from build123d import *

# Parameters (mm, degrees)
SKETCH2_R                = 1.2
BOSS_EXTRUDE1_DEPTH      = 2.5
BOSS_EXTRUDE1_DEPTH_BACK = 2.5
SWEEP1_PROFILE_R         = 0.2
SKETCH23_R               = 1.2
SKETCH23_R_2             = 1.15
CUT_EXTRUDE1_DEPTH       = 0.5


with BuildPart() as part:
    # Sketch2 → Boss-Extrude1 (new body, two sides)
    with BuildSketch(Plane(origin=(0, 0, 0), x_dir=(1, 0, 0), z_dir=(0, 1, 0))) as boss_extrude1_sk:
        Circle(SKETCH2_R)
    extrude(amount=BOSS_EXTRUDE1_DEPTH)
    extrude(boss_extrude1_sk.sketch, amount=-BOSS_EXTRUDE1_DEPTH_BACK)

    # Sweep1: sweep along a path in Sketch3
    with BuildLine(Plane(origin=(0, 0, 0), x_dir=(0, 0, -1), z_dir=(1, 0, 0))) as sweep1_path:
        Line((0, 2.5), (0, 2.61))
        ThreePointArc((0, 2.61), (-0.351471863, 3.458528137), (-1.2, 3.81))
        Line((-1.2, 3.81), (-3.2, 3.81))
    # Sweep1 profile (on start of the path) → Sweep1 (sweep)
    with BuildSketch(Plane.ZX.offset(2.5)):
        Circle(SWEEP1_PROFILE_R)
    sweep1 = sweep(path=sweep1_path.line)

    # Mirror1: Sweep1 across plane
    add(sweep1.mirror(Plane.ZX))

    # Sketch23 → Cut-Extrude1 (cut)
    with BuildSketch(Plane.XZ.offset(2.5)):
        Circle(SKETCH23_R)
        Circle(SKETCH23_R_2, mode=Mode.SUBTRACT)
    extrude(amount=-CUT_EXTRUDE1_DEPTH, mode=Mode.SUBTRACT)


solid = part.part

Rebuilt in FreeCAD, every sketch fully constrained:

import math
import FreeCAD as App
import Part
import Sketcher

V = App.Vector

doc = App.newDocument("Part")
body = doc.addObject("PartDesign::Body", "Body")

# Sketch on XZ plane
sketch1 = body.newObject("Sketcher::SketchObject", "Sketch")
sketch1.AttachmentSupport = (doc.getObject("XZ_Plane"), [""])
sketch1.MapMode = "FlatFace"
sketch1.addGeometry(Part.Circle(V(0, 0, 0), V(0, 0, 1), 1.2), False)
sketch1.addConstraint(Sketcher.Constraint("Coincident", 0, 3, -1, 1))
sketch1.addConstraint(Sketcher.Constraint("Diameter", 0, 2.4))
pad1 = body.newObject("PartDesign::Pad", "Pad")
pad1.Profile = sketch1
pad1.Type = "TwoLengths"
pad1.Length = 2.5
pad1.Length2 = 2.5
pad1.Reversed = True

# Sketch on XZ plane
sketch2 = body.newObject("Sketcher::SketchObject", "Sketch001")
sketch2.AttachmentSupport = (doc.getObject("XZ_Plane"), [""])
sketch2.MapMode = "FlatFace"
sketch2.AttachmentOffset = App.Placement(V(0, 0, -2.5), App.Rotation())
sketch2.addGeometry(Part.Circle(V(0, 0, 0), V(0, 0, 1), 0.2), False)
sketch2.addConstraint(Sketcher.Constraint("Coincident", 0, 3, -1, 1))
sketch2.addConstraint(Sketcher.Constraint("Diameter", 0, 0.4))

# Sketch on YZ plane
sketch3 = body.newObject("Sketcher::SketchObject", "Sketch002")
sketch3.AttachmentSupport = (doc.getObject("YZ_Plane"), [""])
sketch3.MapMode = "FlatFace"
sketch3.addGeometry(Part.LineSegment(V(2.5, 0, 0), V(2.61, 0, 0)), False)
sketch3.addGeometry(Part.ArcOfCircle(Part.Circle(V(2.61, 1.2, 0), V(0, 0, 1), 1.2), math.radians(-90), math.radians(0)), False)
sketch3.addGeometry(Part.LineSegment(V(3.81, 1.2, 0), V(3.81, 3.2, 0)), False)
sketch3.addConstraint(Sketcher.Constraint("Tangent", 0, 2, 1, 1))
sketch3.addConstraint(Sketcher.Constraint("Tangent", 1, 2, 2, 1))
sketch3.addConstraint(Sketcher.Constraint("Horizontal", 0))
sketch3.addConstraint(Sketcher.Constraint("Vertical", 2))
sketch3.addConstraint(Sketcher.Constraint("PointOnObject", 0, 1, -1))
sketch3.addConstraint(Sketcher.Constraint("Radius", 1, 1.2))
sketch3.addConstraint(Sketcher.Constraint("DistanceY", 2, 1, 2, 2, 2.0))
sketch3.addConstraint(Sketcher.Constraint("DistanceX", 0, 1, 0, 2, 0.11))
sketch3.addConstraint(Sketcher.Constraint("DistanceX", -1, 1, 0, 1, 2.5))
doc.recompute()

additivepipe = body.newObject("PartDesign::AdditivePipe", "AdditivePipe")
additivepipe.Profile = sketch2
additivepipe.Spine = (sketch3, ["Edge1", "Edge2", "Edge3"])
doc.recompute()

mirrored = body.newObject("PartDesign::Mirrored", "Mirrored")
mirrored.Originals = [additivepipe]
mirrored.MirrorPlane = (doc.getObject("XZ_Plane"), [""])
body.Tip = mirrored

# Sketch on XZ plane
sketch4 = body.newObject("Sketcher::SketchObject", "Sketch003")
sketch4.AttachmentSupport = (doc.getObject("XZ_Plane"), [""])
sketch4.MapMode = "FlatFace"
sketch4.AttachmentOffset = App.Placement(V(0, 0, 2.5), App.Rotation())
sketch4.addGeometry(Part.Circle(V(0, 0, 0), V(0, 0, 1), 1.2), False)
sketch4.addGeometry(Part.Circle(V(0, 0, 0), V(0, 0, 1), 1.1), False)
sketch4.addConstraint(Sketcher.Constraint("Coincident", 0, 3, -1, 1))
sketch4.addConstraint(Sketcher.Constraint("Coincident", 1, 3, -1, 1))
sketch4.addConstraint(Sketcher.Constraint("Diameter", 0, 2.4))
sketch4.addConstraint(Sketcher.Constraint("Diameter", 1, 2.3))
pocket1 = body.newObject("PartDesign::Pocket", "Pocket")
pocket1.Profile = sketch4
pocket1.Length = 0.5

doc.recompute()
